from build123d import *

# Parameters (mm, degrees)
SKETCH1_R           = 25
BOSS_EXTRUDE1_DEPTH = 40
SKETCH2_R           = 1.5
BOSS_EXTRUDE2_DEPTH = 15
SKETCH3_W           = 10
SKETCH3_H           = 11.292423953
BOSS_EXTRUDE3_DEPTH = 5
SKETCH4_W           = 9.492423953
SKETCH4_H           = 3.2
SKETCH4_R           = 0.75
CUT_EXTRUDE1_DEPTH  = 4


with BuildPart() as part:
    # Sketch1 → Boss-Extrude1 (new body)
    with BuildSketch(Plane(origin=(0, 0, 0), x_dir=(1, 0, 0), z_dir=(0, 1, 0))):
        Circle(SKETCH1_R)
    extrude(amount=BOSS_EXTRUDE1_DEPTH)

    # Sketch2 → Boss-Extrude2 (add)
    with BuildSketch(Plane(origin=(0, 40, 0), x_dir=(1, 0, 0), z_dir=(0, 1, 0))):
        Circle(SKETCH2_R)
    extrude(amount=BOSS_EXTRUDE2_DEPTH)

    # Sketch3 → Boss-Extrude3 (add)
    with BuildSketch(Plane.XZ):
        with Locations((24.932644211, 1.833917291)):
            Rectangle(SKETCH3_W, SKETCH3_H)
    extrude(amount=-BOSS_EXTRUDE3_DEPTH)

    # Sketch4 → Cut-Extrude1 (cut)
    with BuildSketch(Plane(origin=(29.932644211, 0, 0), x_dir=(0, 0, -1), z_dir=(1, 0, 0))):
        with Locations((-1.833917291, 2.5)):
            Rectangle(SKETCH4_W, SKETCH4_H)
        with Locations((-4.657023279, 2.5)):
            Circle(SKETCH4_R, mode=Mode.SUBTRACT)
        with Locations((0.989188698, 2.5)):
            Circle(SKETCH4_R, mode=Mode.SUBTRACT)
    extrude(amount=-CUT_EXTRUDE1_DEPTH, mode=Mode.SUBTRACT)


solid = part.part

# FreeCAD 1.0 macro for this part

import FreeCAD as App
import Part
import Sketcher
from FreeCAD import Vector
Q = App.Units.Quantity


def add_polygon(sketch, points):
    """Adds a closed chain of lines whose ends are joined by coincident constraints."""
    first, n = sketch.GeometryCount, len(points)
    for a, b in zip(points, points[1:] + points[:1]):
        sketch.addGeometry(Part.LineSegment(App.Vector(*a, 0), App.Vector(*b, 0)), False)
    for i in range(n):
        sketch.addConstraint(Sketcher.Constraint("Coincident", first + i, 2, first + (i + 1) % n, 1))

doc = App.newDocument("Part")
body = doc.addObject("PartDesign::Body", "Body")

# Sketch on XZ plane
sketch1 = body.newObject("Sketcher::SketchObject", "Sketch")
sketch1.AttachmentSupport = (doc.getObject("XZ_Plane"), [""])
sketch1.MapMode = "FlatFace"
sketch1.addGeometry(Part.Circle(Vector(0, 0, 0), Vector(0, 0, 1), 25), False)
sketch1.addConstraint([
    Sketcher.Constraint("Coincident", 0, 3, -1, 1),
    Sketcher.Constraint("Diameter", 0, Q("50 mm")),
])
pad1 = body.newObject("PartDesign::Pad", "Pad")
pad1.Profile = sketch1
pad1.Length = 40
pad1.Reversed = True

# Sketch on XZ plane
sketch2 = body.newObject("Sketcher::SketchObject", "Sketch001")
sketch2.AttachmentSupport = (doc.getObject("XZ_Plane"), [""])
sketch2.MapMode = "FlatFace"
sketch2.AttachmentOffset = App.Placement(Vector(0, 0, -40), App.Rotation())
sketch2.addGeometry(Part.Circle(Vector(0, 0, 0), Vector(0, 0, 1), 1.5), False)
sketch2.addConstraint([
    Sketcher.Constraint("Coincident", 0, 3, -1, 1),
    Sketcher.Constraint("Diameter", 0, Q("3 mm")),
])
pad2 = body.newObject("PartDesign::Pad", "Pad001")
pad2.Profile = sketch2
pad2.Length = 15
pad2.Reversed = True

# Sketch on XZ plane
sketch3 = body.newObject("Sketcher::SketchObject", "Sketch002")
sketch3.AttachmentSupport = (doc.getObject("XZ_Plane"), [""])
sketch3.MapMode = "FlatFace"
add_polygon(sketch3, [(20, 7), (20, -4), (30, -4), (30, 7)])  # lines 0-3
sketch3.addConstraint([
    Sketcher.Constraint("Vertical", 0),
    Sketcher.Constraint("Horizontal", 1),
    Sketcher.Constraint("Vertical", 2),
    Sketcher.Constraint("Horizontal", 3),
    Sketcher.Constraint("DistanceX", 1, 1, 1, 2, Q("10 mm")),
    Sketcher.Constraint("DistanceY", 0, 2, 0, 1, Q("11.292424 mm")),
    Sketcher.Constraint("DistanceY", -1, 1, 2, 2, Q("7.480129 mm")),
    Sketcher.Constraint("DistanceX", -1, 1, 0, 2, Q("19.932644 mm")),
])
pad3 = body.newObject("PartDesign::Pad", "Pad002")
pad3.Profile = sketch3
pad3.Length = 5
pad3.Reversed = True

# Sketch on YZ plane
sketch4 = body.newObject("Sketcher::SketchObject", "Sketch003")
sketch4.AttachmentSupport = (doc.getObject("YZ_Plane"), [""])
sketch4.MapMode = "FlatFace"
sketch4.AttachmentOffset = App.Placement(Vector(0, 0, 29.932644), App.Rotation())
add_polygon(sketch4, [(4.1, 6.6), (0.9, 6.6), (0.9, -2.9), (4.1, -2.9)])  # lines 0-3
sketch4.addGeometry(Part.Circle(Vector(2.5, 4.7, 0), Vector(0, 0, 1), 0.8), False)  # 4
sketch4.addGeometry(Part.Circle(Vector(2.5, -1, 0), Vector(0, 0, 1), 0.8), False)  # 5
sketch4.addConstraint([
    Sketcher.Constraint("Horizontal", 0),
    Sketcher.Constraint("Vertical", 1),
    Sketcher.Constraint("Horizontal", 2),
    Sketcher.Constraint("Vertical", 3),
    Sketcher.Constraint("Equal", 4, 5),
    Sketcher.Constraint("Vertical", 4, 3, 5, 3),
    Sketcher.Constraint("Diameter", 4, Q("1.5 mm")),
    Sketcher.Constraint("DistanceX", 0, 2, 0, 1, Q("3.2 mm")),
    Sketcher.Constraint("DistanceX", -1, 1, 4, 3, Q("2.5 mm")),
    Sketcher.Constraint("DistanceX", -1, 1, 0, 2, Q("0.9 mm")),
    Sketcher.Constraint("DistanceY", 1, 2, 1, 1, Q("9.492424 mm")),
    Sketcher.Constraint("DistanceY", 5, 3, -1, 1, Q("0.989189 mm")),
    Sketcher.Constraint("DistanceY", -1, 1, 0, 2, Q("6.580129 mm")),
    Sketcher.Constraint("DistanceY", 5, 3, 4, 3, Q("5.646212 mm")),
])
pocket1 = body.newObject("PartDesign::Pocket", "Pocket")
pocket1.Profile = sketch4
pocket1.Length = 4

doc.recompute()
